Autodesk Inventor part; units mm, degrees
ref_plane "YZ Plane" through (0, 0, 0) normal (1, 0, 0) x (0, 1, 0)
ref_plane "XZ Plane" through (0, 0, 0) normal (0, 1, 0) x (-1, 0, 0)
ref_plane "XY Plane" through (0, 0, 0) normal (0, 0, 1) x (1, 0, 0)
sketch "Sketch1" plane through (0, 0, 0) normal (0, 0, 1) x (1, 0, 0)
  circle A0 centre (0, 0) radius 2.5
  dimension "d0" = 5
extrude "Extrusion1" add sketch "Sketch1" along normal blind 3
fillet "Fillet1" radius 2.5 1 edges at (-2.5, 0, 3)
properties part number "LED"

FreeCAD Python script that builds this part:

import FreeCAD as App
import Part
import Sketcher

V = App.Vector
Q = App.Units.Quantity


def edges_at(feature, points):
    """Names of the edges that pass closest to the given points."""
    edges = feature.Shape.Edges
    near = lambda p: min(range(len(edges)), key=lambda i: edges[i].distToShape(Part.Vertex(*p))[0])
    return sorted({f"Edge{near(p) + 1}" for p in points})

doc = App.newDocument("Part")
body = doc.addObject("PartDesign::Body", "Body")

# Sketch on XY plane
sketch1 = body.newObject("Sketcher::SketchObject", "Sketch")
sketch1.AttachmentSupport = (doc.getObject("XY_Plane"), [""])
sketch1.MapMode = "FlatFace"
sketch1.addGeometry(Part.Circle(V(0, 0, 0), V(0, 0, 1), 2.5), False)
sketch1.addConstraint(Sketcher.Constraint("Coincident", 0, 3, -1, 1))
sketch1.addConstraint(Sketcher.Constraint("Diameter", 0, Q("5 mm")))
pad1 = body.newObject("PartDesign::Pad", "Pad")
pad1.Profile = sketch1
pad1.Length = 3
doc.recompute()

fillet = body.newObject("PartDesign::Fillet", "Fillet")
fillet.Base = (pad1, edges_at(pad1, [(-2.5, 0, 3)]))
fillet.Radius = 2.5

doc.recompute()
